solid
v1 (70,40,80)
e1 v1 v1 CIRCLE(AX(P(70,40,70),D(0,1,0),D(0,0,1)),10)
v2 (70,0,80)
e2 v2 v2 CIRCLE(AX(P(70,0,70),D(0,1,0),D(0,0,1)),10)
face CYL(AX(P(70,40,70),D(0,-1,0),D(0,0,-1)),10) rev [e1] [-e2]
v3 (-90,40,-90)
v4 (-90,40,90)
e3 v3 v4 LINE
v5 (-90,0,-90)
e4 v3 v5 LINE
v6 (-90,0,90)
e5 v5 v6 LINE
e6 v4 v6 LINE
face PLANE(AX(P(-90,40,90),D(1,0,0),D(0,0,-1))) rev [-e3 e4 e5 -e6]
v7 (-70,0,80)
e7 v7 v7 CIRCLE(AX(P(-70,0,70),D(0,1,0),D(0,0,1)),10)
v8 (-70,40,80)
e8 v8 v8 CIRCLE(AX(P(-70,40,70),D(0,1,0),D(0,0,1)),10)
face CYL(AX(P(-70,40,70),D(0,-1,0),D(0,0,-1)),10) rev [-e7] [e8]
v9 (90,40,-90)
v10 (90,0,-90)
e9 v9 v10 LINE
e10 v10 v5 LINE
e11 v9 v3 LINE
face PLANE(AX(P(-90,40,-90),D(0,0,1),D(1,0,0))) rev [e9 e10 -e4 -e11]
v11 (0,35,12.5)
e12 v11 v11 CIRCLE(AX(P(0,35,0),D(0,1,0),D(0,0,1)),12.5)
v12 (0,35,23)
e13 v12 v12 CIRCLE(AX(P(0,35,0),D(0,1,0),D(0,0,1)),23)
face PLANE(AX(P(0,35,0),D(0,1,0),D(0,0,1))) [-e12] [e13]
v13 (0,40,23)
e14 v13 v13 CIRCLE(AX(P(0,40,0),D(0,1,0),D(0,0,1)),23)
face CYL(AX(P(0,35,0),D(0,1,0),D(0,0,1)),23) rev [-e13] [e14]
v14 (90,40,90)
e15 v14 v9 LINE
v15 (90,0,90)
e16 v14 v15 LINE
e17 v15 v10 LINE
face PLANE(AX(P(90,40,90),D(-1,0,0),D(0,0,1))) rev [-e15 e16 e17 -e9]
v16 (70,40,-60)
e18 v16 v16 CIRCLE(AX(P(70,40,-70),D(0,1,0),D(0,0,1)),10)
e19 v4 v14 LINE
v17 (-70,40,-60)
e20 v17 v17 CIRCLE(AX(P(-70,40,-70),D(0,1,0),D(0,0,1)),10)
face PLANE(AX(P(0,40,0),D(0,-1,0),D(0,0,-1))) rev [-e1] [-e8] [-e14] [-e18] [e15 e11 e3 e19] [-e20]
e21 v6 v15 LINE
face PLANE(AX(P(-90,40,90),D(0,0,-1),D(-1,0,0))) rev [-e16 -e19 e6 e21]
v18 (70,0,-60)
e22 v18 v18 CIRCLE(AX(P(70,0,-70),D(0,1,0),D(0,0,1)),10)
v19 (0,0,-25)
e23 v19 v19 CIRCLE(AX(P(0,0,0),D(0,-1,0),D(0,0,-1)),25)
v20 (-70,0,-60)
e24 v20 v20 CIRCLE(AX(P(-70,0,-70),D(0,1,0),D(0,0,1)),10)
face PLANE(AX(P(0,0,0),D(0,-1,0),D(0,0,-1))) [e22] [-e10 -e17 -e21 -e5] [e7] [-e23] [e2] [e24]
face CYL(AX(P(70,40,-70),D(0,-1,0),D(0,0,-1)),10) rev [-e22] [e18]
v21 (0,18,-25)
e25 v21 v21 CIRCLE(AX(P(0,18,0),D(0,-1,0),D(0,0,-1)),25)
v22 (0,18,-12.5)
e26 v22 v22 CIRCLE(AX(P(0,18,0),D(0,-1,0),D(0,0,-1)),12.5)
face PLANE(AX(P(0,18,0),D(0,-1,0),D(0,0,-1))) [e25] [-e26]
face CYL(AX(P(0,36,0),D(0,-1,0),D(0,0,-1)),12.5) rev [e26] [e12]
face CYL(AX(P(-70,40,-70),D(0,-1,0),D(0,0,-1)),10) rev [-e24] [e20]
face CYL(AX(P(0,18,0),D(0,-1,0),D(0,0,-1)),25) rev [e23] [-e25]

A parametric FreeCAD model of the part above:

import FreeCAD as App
import Part
import Sketcher
from FreeCAD import Vector

doc = App.newDocument("Part")
body = doc.addObject("PartDesign::Body", "Body")

sketch1 = body.newObject("Sketcher::SketchObject", "Sketch")
sketch1.AttachmentSupport = (doc.getObject("XZ_Plane"), [""])
sketch1.MapMode = "FlatFace"
sketch1.addGeometry(Part.LineSegment(Vector(-90, -90, 0), Vector(-90, 90, 0)), False)
sketch1.addGeometry(Part.LineSegment(Vector(-90, 90, 0), Vector(90, 90, 0)), False)
sketch1.addGeometry(Part.LineSegment(Vector(90, 90, 0), Vector(90, -90, 0)), False)
sketch1.addGeometry(Part.LineSegment(Vector(90, -90, 0), Vector(-90, -90, 0)), False)
sketch1.addGeometry(Part.Circle(Vector(-70, 70, 0), Vector(0, 0, 1), 10), False)
sketch1.addGeometry(Part.Circle(Vector(70, 70, 0), Vector(0, 0, 1), 10), False)
sketch1.addGeometry(Part.Circle(Vector(-70, -70, 0), Vector(0, 0, 1), 10), False)
sketch1.addGeometry(Part.Circle(Vector(70, -70, 0), Vector(0, 0, 1), 10), False)
sketch1.addConstraint(Sketcher.Constraint("Coincident", 0, 2, 1, 1))
sketch1.addConstraint(Sketcher.Constraint("Coincident", 1, 2, 2, 1))
sketch1.addConstraint(Sketcher.Constraint("Coincident", 2, 2, 3, 1))
sketch1.addConstraint(Sketcher.Constraint("Coincident", 3, 2, 0, 1))
sketch1.addConstraint(Sketcher.Constraint("Vertical", 0))
sketch1.addConstraint(Sketcher.Constraint("Horizontal", 1))
sketch1.addConstraint(Sketcher.Constraint("Vertical", 2))
sketch1.addConstraint(Sketcher.Constraint("Horizontal", 3))
sketch1.addConstraint(Sketcher.Constraint("Equal", 4, 5))
sketch1.addConstraint(Sketcher.Constraint("Equal", 5, 6))
sketch1.addConstraint(Sketcher.Constraint("Equal", 6, 7))
sketch1.addConstraint(Sketcher.Constraint("Symmetric", 5, 3, 6, 3, -1, 1))
sketch1.addConstraint(Sketcher.Constraint("Symmetric", 4, 3, 7, 3, -1, 1))
sketch1.addConstraint(Sketcher.Constraint("Symmetric", 0, 2, 2, 2, -1, 1))
sketch1.addConstraint(Sketcher.Constraint("Symmetric", 4, 3, 5, 3, -2))
sketch1.addConstraint(Sketcher.Constraint("Equal", 3, 0))
sketch1.addConstraint(Sketcher.Constraint("Diameter", 4, 20.0))
sketch1.addConstraint(Sketcher.Constraint("DistanceX", 1, 1, 1, 2, 180.0))
sketch1.addConstraint(Sketcher.Constraint("DistanceX", 4, 3, -1, 1, 70.0))
sketch1.addConstraint(Sketcher.Constraint("DistanceY", -1, 1, 4, 3, 70.0))
pad1 = body.newObject("PartDesign::Pad", "Pad")
pad1.Profile = sketch1
pad1.Length = 40
pad1.Reversed = True

sketch2 = body.newObject("Sketcher::SketchObject", "Sketch001")
sketch2.AttachmentSupport = (doc.getObject("XZ_Plane"), [""])
sketch2.MapMode = "FlatFace"
sketch2.AttachmentOffset = App.Placement(Vector(0, 0, -40), App.Rotation())
sketch2.addGeometry(Part.Circle(Vector(0, 0, 0), Vector(0, 0, 1), 23), False)
sketch2.addConstraint(Sketcher.Constraint("Coincident", 0, 3, -1, 1))
sketch2.addConstraint(Sketcher.Constraint("Diameter", 0, 46.0))
pocket1 = body.newObject("PartDesign::Pocket", "Pocket")
pocket1.Profile = sketch2
pocket1.Length = 5
pocket1.Reversed = True

sketch3 = body.newObject("Sketcher::SketchObject", "Sketch002")
sketch3.AttachmentSupport = (doc.getObject("XZ_Plane"), [""])
sketch3.MapMode = "FlatFace"
sketch3.addGeometry(Part.Circle(Vector(0, 0, 0), Vector(0, 0, 1), 25), False)
sketch3.addConstraint(Sketcher.Constraint("Coincident", 0, 3, -1, 1))
sketch3.addConstraint(Sketcher.Constraint("Diameter", 0, 50.0))
pocket2 = body.newObject("PartDesign::Pocket", "Pocket001")
pocket2.Profile = sketch3
pocket2.Length = 18

sketch4 = body.newObject("Sketcher::SketchObject", "Sketch003")
sketch4.AttachmentSupport = (doc.getObject("XZ_Plane"), [""])
sketch4.MapMode = "FlatFace"
sketch4.AttachmentOffset = App.Placement(Vector(0, 0, -18), App.Rotation())
sketch4.addGeometry(Part.Circle(Vector(0, 0, 0), Vector(0, 0, 1), 12), False)
sketch4.addConstraint(Sketcher.Constraint("Coincident", 0, 3, -1, 1))
sketch4.addConstraint(Sketcher.Constraint("Diameter", 0, 25.0))
pocket3 = body.newObject("PartDesign::Pocket", "Pocket002")
pocket3.Profile = sketch4
pocket3.Length = 18

doc.recompute()
